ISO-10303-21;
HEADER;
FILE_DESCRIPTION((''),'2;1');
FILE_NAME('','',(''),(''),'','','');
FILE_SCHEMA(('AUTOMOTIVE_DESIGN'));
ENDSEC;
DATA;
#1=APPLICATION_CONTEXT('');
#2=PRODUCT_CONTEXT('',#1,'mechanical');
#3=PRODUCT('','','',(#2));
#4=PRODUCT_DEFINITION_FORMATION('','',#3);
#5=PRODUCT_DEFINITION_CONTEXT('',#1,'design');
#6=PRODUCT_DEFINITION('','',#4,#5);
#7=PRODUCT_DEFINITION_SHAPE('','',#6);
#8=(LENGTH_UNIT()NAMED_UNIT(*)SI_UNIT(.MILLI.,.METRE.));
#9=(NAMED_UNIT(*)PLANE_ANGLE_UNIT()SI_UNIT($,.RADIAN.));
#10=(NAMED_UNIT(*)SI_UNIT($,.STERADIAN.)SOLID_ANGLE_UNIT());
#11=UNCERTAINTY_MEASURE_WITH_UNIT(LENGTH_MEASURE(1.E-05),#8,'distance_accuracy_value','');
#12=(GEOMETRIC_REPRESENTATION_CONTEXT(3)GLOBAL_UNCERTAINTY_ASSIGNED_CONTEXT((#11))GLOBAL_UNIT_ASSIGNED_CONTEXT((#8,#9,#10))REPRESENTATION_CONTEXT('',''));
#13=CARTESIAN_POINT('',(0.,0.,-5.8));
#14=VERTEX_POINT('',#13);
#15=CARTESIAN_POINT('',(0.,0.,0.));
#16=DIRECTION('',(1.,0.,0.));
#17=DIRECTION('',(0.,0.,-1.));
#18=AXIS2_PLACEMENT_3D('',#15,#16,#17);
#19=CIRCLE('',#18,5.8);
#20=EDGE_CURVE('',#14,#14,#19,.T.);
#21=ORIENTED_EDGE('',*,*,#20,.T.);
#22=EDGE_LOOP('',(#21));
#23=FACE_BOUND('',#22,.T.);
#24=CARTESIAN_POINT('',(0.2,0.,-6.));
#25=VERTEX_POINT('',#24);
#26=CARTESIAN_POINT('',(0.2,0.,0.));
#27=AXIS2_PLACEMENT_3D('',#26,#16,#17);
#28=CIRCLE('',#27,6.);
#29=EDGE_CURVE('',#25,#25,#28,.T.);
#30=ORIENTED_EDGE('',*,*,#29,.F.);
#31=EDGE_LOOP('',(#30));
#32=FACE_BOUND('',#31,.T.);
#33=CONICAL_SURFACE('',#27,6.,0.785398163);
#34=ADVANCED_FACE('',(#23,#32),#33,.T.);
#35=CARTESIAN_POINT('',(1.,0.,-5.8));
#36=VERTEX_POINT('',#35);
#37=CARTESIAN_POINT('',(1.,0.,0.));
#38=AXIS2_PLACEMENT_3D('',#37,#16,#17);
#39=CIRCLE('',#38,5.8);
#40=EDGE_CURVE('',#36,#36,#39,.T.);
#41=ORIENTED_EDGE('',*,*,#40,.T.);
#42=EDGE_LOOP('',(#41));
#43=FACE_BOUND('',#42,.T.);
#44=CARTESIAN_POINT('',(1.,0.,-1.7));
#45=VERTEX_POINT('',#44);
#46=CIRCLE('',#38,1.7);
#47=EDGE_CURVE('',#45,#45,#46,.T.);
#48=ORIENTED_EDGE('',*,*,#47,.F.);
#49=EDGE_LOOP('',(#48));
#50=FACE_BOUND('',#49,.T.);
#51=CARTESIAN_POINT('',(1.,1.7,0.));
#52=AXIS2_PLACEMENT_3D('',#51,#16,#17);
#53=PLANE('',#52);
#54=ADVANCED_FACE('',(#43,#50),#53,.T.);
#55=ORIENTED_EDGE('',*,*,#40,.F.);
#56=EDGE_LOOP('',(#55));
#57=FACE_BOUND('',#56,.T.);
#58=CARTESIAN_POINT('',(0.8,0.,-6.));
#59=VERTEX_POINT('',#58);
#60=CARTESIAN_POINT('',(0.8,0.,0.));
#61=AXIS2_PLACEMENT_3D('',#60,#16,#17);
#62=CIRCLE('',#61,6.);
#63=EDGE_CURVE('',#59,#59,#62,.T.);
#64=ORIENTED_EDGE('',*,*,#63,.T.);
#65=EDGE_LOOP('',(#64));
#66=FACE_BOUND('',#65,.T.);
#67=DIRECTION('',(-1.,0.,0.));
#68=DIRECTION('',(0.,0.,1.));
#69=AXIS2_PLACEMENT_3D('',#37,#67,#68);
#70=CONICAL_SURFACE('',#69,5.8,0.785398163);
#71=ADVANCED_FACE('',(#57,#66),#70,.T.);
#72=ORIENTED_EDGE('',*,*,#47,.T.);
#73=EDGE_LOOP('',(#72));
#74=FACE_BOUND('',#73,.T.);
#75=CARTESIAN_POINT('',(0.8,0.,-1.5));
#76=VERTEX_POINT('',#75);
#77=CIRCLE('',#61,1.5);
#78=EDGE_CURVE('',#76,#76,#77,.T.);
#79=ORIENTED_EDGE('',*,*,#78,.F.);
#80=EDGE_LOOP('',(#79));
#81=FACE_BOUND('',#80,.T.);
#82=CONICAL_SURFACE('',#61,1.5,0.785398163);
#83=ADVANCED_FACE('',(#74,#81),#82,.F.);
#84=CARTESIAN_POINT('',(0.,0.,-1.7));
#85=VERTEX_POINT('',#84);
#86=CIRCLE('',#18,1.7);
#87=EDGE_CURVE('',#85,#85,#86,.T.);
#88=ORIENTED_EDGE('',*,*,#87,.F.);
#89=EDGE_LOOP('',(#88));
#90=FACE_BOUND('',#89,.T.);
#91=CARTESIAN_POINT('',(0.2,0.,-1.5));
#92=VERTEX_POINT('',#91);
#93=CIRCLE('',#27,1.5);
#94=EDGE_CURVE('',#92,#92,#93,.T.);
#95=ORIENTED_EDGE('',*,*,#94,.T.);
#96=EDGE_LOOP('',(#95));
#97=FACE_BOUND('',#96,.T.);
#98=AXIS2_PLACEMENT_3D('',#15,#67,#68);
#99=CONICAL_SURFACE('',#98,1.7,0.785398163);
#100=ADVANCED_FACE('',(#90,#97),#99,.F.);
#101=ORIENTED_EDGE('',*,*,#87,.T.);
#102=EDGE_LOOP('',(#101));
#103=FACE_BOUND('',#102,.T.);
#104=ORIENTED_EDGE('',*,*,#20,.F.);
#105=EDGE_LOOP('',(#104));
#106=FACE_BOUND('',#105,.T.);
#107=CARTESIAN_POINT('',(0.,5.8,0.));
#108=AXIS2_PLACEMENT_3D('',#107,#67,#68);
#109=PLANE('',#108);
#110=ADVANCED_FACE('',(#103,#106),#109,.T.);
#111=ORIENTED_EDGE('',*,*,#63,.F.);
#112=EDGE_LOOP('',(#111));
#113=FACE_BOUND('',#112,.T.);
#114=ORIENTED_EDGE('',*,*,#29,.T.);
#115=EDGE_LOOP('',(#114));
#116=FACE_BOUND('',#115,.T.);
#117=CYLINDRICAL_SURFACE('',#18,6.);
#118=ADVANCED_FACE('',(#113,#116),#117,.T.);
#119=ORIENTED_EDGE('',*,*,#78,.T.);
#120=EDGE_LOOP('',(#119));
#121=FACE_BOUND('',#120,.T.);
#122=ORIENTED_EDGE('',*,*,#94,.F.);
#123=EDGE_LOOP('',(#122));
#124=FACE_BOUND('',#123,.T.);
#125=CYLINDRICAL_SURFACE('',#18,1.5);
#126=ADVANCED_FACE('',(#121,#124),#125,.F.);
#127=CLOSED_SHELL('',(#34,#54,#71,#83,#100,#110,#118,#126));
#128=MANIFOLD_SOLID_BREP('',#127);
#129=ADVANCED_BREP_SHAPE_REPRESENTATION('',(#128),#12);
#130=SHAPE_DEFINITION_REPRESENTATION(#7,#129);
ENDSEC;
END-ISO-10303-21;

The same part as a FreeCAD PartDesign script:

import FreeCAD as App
import Part
import Sketcher

V = App.Vector
Q = App.Units.Quantity

doc = App.newDocument("Part")
params = doc.addObject("Spreadsheet::Sheet", "Params")
for row, (alias, value) in enumerate([
    ("sketch1_width", "0.6 mm"),
    ("sketch1_height", "4.1 mm"),
    ("revolution_angle", "360 deg"),
], start=1):
    params.set(f"A{row}", alias)
    params.set(f"B{row}", "=" + value)
    params.setAlias(f"B{row}", alias)

body = doc.addObject("PartDesign::Body", "Body")

# Sketch on XY plane
sketch1 = body.newObject("Sketcher::SketchObject", "Sketch")
sketch1.AttachmentSupport = (doc.getObject("XY_Plane"), [""])
sketch1.MapMode = "FlatFace"
sketch1.addGeometry(Part.LineSegment(V(0, 5.8, 0), V(0, 1.7, 0)), False)
sketch1.addGeometry(Part.LineSegment(V(0, 1.7, 0), V(0.2, 1.5, 0)), False)
sketch1.addGeometry(Part.LineSegment(V(0.2, 1.5, 0), V(0.8, 1.5, 0)), False)
sketch1.addGeometry(Part.LineSegment(V(0.8, 1.5, 0), V(1, 1.7, 0)), False)
sketch1.addGeometry(Part.LineSegment(V(1, 1.7, 0), V(1, 5.8, 0)), False)
sketch1.addGeometry(Part.LineSegment(V(1, 5.8, 0), V(0.8, 6, 0)), False)
sketch1.addGeometry(Part.LineSegment(V(0.8, 6, 0), V(0.2, 6, 0)), False)
sketch1.addGeometry(Part.LineSegment(V(0.2, 6, 0), V(0, 5.8, 0)), False)
sketch1.addConstraint(Sketcher.Constraint("Coincident", 0, 2, 1, 1))
sketch1.addConstraint(Sketcher.Constraint("Coincident", 1, 2, 2, 1))
sketch1.addConstraint(Sketcher.Constraint("Coincident", 2, 2, 3, 1))
sketch1.addConstraint(Sketcher.Constraint("Coincident", 3, 2, 4, 1))
sketch1.addConstraint(Sketcher.Constraint("Coincident", 4, 2, 5, 1))
sketch1.addConstraint(Sketcher.Constraint("Coincident", 5, 2, 6, 1))
sketch1.addConstraint(Sketcher.Constraint("Coincident", 6, 2, 7, 1))
sketch1.addConstraint(Sketcher.Constraint("Coincident", 7, 2, 0, 1))
sketch1.addConstraint(Sketcher.Constraint("Vertical", 0))
sketch1.addConstraint(Sketcher.Constraint("Horizontal", 2))
sketch1.addConstraint(Sketcher.Constraint("Vertical", 4))
sketch1.addConstraint(Sketcher.Constraint("Horizontal", 6))
sketch1.addConstraint(Sketcher.Constraint("PointOnObject", 0, 2, -2))
sketch1.addConstraint(Sketcher.Constraint("Perpendicular", 1, 3))
sketch1.addConstraint(Sketcher.Constraint("Perpendicular", 3, 5))
sketch1.addConstraint(Sketcher.Constraint("Perpendicular", 5, 7))
sketch1.addConstraint(Sketcher.Constraint("Horizontal", 0, 2, 3, 2))
sketch1.addConstraint(Sketcher.Constraint("Horizontal", 4, 2, 7, 2))
sketch1.addConstraint(Sketcher.Constraint("Vertical", 2, 2, 5, 2))
sketch1.addConstraint(Sketcher.Constraint("Vertical", 1, 2, 6, 2))
sketch1.addConstraint(Sketcher.Constraint("DistanceX", 2, 1, 2, 2, Q("0.6 mm")))
sketch1.addConstraint(Sketcher.Constraint("DistanceY", 0, 2, 0, 1, Q("4.1 mm")))
sketch1.addConstraint(Sketcher.Constraint("DistanceX", -1, 1, 3, 2, Q("1 mm")))
sketch1.addConstraint(Sketcher.Constraint("DistanceY", -1, 1, 5, 2, Q("6 mm")))
sketch1.setExpression("Constraints[20]", "Params.sketch1_width")
sketch1.setExpression("Constraints[21]", "Params.sketch1_height")
revolution = body.newObject("PartDesign::Revolution", "Revolution")
revolution.Profile = sketch1
revolution.ReferenceAxis = (sketch1, ["H_Axis"])
revolution.setExpression("Angle", "Params.revolution_angle")

doc.recompute()
